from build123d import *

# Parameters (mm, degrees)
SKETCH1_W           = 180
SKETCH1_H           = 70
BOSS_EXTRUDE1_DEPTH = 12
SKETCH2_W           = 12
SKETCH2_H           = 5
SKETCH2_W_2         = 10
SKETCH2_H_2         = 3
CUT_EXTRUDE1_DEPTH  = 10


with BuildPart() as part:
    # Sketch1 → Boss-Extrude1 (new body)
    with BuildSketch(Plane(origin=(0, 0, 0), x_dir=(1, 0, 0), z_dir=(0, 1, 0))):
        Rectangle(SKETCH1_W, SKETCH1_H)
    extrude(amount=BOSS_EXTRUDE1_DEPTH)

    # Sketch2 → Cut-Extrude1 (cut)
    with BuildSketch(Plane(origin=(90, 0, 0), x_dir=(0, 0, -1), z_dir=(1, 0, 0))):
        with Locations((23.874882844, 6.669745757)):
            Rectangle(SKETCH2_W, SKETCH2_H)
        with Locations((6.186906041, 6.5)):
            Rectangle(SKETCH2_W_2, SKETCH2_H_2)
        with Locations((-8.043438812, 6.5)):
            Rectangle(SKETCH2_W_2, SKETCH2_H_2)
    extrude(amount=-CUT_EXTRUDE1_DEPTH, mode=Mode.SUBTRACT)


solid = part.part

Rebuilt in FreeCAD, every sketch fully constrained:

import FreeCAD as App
import Part
import Sketcher
Q = App.Units.Quantity

doc = App.newDocument("Part")
body = doc.addObject("PartDesign::Body", "Body")

sketch1 = body.newObject("Sketcher::SketchObject", "Sketch")
sketch1.AttachmentSupport = (doc.getObject("XZ_Plane"), [""])
sketch1.MapMode = "FlatFace"
sketch1.addGeometry(Part.LineSegment(App.Vector(-90, -35, 0), App.Vector(-90, 35, 0)), False)
sketch1.addGeometry(Part.LineSegment(App.Vector(-90, 35, 0), App.Vector(90, 35, 0)), False)
sketch1.addGeometry(Part.LineSegment(App.Vector(90, 35, 0), App.Vector(90, -35, 0)), False)
sketch1.addGeometry(Part.LineSegment(App.Vector(90, -35, 0), App.Vector(-90, -35, 0)), False)
sketch1.addConstraint(Sketcher.Constraint("Coincident", 0, 2, 1, 1))
sketch1.addConstraint(Sketcher.Constraint("Coincident", 1, 2, 2, 1))
sketch1.addConstraint(Sketcher.Constraint("Coincident", 2, 2, 3, 1))
sketch1.addConstraint(Sketcher.Constraint("Coincident", 3, 2, 0, 1))
sketch1.addConstraint(Sketcher.Constraint("Vertical", 0))
sketch1.addConstraint(Sketcher.Constraint("Horizontal", 1))
sketch1.addConstraint(Sketcher.Constraint("Vertical", 2))
sketch1.addConstraint(Sketcher.Constraint("Horizontal", 3))
sketch1.addConstraint(Sketcher.Constraint("Symmetric", 0, 2, 2, 2, -1, 1))
sketch1.addConstraint(Sketcher.Constraint("DistanceX", 1, 1, 1, 2, Q("180 mm")))
sketch1.addConstraint(Sketcher.Constraint("DistanceY", 0, 1, 0, 2, Q("70 mm")))
pad1 = body.newObject("PartDesign::Pad", "Pad")
pad1.Profile = sketch1
pad1.Length = 12
pad1.Reversed = True

sketch2 = body.newObject("Sketcher::SketchObject", "Sketch001")
sketch2.AttachmentSupport = (doc.getObject("YZ_Plane"), [""])
sketch2.MapMode = "FlatFace"
sketch2.AttachmentOffset = App.Placement(App.Vector(0, 0, 90), App.Rotation())
sketch2.addGeometry(Part.LineSegment(App.Vector(9.169746, -17.874883, 0), App.Vector(4.169746, -17.874883, 0)), False)
sketch2.addGeometry(Part.LineSegment(App.Vector(4.169746, -17.874883, 0), App.Vector(4.169746, -29.874883, 0)), False)
sketch2.addGeometry(Part.LineSegment(App.Vector(4.169746, -29.874883, 0), App.Vector(9.169746, -29.874883, 0)), False)
sketch2.addGeometry(Part.LineSegment(App.Vector(9.169746, -29.874883, 0), App.Vector(9.169746, -17.874883, 0)), False)
sketch2.addGeometry(Part.LineSegment(App.Vector(8, -1.186906, 0), App.Vector(5, -1.186906, 0)), False)
sketch2.addGeometry(Part.LineSegment(App.Vector(5, -1.186906, 0), App.Vector(5, -11.186906, 0)), False)
sketch2.addGeometry(Part.LineSegment(App.Vector(5, -11.186906, 0), App.Vector(8, -11.186906, 0)), False)
sketch2.addGeometry(Part.LineSegment(App.Vector(8, -11.186906, 0), App.Vector(8, -1.186906, 0)), False)
sketch2.addGeometry(Part.LineSegment(App.Vector(8, 13.043439, 0), App.Vector(5, 13.043439, 0)), False)
sketch2.addGeometry(Part.LineSegment(App.Vector(5, 13.043439, 0), App.Vector(5, 3.043439, 0)), False)
sketch2.addGeometry(Part.LineSegment(App.Vector(5, 3.043439, 0), App.Vector(8, 3.043439, 0)), False)
sketch2.addGeometry(Part.LineSegment(App.Vector(8, 3.043439, 0), App.Vector(8, 13.043439, 0)), False)
sketch2.addConstraint(Sketcher.Constraint("Coincident", 0, 2, 1, 1))
sketch2.addConstraint(Sketcher.Constraint("Coincident", 1, 2, 2, 1))
sketch2.addConstraint(Sketcher.Constraint("Coincident", 2, 2, 3, 1))
sketch2.addConstraint(Sketcher.Constraint("Coincident", 3, 2, 0, 1))
sketch2.addConstraint(Sketcher.Constraint("Coincident", 4, 2, 5, 1))
sketch2.addConstraint(Sketcher.Constraint("Coincident", 5, 2, 6, 1))
sketch2.addConstraint(Sketcher.Constraint("Coincident", 6, 2, 7, 1))
sketch2.addConstraint(Sketcher.Constraint("Coincident", 7, 2, 4, 1))
sketch2.addConstraint(Sketcher.Constraint("Coincident", 8, 2, 9, 1))
sketch2.addConstraint(Sketcher.Constraint("Coincident", 9, 2, 10, 1))
sketch2.addConstraint(Sketcher.Constraint("Coincident", 10, 2, 11, 1))
sketch2.addConstraint(Sketcher.Constraint("Coincident", 11, 2, 8, 1))
sketch2.addConstraint(Sketcher.Constraint("Horizontal", 0))
sketch2.addConstraint(Sketcher.Constraint("Vertical", 1))
sketch2.addConstraint(Sketcher.Constraint("Horizontal", 2))
sketch2.addConstraint(Sketcher.Constraint("Vertical", 3))
sketch2.addConstraint(Sketcher.Constraint("Horizontal", 4))
sketch2.addConstraint(Sketcher.Constraint("Vertical", 5))
sketch2.addConstraint(Sketcher.Constraint("Horizontal", 6))
sketch2.addConstraint(Sketcher.Constraint("Vertical", 7))
sketch2.addConstraint(Sketcher.Constraint("Horizontal", 8))
sketch2.addConstraint(Sketcher.Constraint("Vertical", 9))
sketch2.addConstraint(Sketcher.Constraint("Horizontal", 10))
sketch2.addConstraint(Sketcher.Constraint("Vertical", 11))
sketch2.addConstraint(Sketcher.Constraint("Vertical", 5, 2, 8, 2))
sketch2.addConstraint(Sketcher.Constraint("Vertical", 7, 2, 10, 2))
sketch2.addConstraint(Sketcher.Constraint("Equal", 7, 9))
sketch2.addConstraint(Sketcher.Constraint("DistanceX", 0, 2, 0, 1, Q("5 mm")))
sketch2.addConstraint(Sketcher.Constraint("DistanceX", 4, 2, 4, 1, Q("3 mm")))
sketch2.addConstraint(Sketcher.Constraint("DistanceY", 1, 2, 1, 1, Q("12 mm")))
sketch2.addConstraint(Sketcher.Constraint("DistanceY", 5, 2, 5, 1, Q("10 mm")))
sketch2.addConstraint(Sketcher.Constraint("DistanceX", -1, 1, 4, 2, Q("5 mm")))
sketch2.addConstraint(Sketcher.Constraint("DistanceY", -1, 1, 8, 2, Q("13.043439 mm")))
sketch2.addConstraint(Sketcher.Constraint("DistanceY", 0, 2, 8, 2, Q("30.918322 mm")))
sketch2.addConstraint(Sketcher.Constraint("DistanceX", -1, 1, 0, 2, Q("4.169746 mm")))
sketch2.addConstraint(Sketcher.Constraint("DistanceY", 4, 2, -1, 1, Q("1.186906 mm")))
pocket1 = body.newObject("PartDesign::Pocket", "Pocket")
pocket1.Profile = sketch2
pocket1.Length = 10

doc.recompute()
